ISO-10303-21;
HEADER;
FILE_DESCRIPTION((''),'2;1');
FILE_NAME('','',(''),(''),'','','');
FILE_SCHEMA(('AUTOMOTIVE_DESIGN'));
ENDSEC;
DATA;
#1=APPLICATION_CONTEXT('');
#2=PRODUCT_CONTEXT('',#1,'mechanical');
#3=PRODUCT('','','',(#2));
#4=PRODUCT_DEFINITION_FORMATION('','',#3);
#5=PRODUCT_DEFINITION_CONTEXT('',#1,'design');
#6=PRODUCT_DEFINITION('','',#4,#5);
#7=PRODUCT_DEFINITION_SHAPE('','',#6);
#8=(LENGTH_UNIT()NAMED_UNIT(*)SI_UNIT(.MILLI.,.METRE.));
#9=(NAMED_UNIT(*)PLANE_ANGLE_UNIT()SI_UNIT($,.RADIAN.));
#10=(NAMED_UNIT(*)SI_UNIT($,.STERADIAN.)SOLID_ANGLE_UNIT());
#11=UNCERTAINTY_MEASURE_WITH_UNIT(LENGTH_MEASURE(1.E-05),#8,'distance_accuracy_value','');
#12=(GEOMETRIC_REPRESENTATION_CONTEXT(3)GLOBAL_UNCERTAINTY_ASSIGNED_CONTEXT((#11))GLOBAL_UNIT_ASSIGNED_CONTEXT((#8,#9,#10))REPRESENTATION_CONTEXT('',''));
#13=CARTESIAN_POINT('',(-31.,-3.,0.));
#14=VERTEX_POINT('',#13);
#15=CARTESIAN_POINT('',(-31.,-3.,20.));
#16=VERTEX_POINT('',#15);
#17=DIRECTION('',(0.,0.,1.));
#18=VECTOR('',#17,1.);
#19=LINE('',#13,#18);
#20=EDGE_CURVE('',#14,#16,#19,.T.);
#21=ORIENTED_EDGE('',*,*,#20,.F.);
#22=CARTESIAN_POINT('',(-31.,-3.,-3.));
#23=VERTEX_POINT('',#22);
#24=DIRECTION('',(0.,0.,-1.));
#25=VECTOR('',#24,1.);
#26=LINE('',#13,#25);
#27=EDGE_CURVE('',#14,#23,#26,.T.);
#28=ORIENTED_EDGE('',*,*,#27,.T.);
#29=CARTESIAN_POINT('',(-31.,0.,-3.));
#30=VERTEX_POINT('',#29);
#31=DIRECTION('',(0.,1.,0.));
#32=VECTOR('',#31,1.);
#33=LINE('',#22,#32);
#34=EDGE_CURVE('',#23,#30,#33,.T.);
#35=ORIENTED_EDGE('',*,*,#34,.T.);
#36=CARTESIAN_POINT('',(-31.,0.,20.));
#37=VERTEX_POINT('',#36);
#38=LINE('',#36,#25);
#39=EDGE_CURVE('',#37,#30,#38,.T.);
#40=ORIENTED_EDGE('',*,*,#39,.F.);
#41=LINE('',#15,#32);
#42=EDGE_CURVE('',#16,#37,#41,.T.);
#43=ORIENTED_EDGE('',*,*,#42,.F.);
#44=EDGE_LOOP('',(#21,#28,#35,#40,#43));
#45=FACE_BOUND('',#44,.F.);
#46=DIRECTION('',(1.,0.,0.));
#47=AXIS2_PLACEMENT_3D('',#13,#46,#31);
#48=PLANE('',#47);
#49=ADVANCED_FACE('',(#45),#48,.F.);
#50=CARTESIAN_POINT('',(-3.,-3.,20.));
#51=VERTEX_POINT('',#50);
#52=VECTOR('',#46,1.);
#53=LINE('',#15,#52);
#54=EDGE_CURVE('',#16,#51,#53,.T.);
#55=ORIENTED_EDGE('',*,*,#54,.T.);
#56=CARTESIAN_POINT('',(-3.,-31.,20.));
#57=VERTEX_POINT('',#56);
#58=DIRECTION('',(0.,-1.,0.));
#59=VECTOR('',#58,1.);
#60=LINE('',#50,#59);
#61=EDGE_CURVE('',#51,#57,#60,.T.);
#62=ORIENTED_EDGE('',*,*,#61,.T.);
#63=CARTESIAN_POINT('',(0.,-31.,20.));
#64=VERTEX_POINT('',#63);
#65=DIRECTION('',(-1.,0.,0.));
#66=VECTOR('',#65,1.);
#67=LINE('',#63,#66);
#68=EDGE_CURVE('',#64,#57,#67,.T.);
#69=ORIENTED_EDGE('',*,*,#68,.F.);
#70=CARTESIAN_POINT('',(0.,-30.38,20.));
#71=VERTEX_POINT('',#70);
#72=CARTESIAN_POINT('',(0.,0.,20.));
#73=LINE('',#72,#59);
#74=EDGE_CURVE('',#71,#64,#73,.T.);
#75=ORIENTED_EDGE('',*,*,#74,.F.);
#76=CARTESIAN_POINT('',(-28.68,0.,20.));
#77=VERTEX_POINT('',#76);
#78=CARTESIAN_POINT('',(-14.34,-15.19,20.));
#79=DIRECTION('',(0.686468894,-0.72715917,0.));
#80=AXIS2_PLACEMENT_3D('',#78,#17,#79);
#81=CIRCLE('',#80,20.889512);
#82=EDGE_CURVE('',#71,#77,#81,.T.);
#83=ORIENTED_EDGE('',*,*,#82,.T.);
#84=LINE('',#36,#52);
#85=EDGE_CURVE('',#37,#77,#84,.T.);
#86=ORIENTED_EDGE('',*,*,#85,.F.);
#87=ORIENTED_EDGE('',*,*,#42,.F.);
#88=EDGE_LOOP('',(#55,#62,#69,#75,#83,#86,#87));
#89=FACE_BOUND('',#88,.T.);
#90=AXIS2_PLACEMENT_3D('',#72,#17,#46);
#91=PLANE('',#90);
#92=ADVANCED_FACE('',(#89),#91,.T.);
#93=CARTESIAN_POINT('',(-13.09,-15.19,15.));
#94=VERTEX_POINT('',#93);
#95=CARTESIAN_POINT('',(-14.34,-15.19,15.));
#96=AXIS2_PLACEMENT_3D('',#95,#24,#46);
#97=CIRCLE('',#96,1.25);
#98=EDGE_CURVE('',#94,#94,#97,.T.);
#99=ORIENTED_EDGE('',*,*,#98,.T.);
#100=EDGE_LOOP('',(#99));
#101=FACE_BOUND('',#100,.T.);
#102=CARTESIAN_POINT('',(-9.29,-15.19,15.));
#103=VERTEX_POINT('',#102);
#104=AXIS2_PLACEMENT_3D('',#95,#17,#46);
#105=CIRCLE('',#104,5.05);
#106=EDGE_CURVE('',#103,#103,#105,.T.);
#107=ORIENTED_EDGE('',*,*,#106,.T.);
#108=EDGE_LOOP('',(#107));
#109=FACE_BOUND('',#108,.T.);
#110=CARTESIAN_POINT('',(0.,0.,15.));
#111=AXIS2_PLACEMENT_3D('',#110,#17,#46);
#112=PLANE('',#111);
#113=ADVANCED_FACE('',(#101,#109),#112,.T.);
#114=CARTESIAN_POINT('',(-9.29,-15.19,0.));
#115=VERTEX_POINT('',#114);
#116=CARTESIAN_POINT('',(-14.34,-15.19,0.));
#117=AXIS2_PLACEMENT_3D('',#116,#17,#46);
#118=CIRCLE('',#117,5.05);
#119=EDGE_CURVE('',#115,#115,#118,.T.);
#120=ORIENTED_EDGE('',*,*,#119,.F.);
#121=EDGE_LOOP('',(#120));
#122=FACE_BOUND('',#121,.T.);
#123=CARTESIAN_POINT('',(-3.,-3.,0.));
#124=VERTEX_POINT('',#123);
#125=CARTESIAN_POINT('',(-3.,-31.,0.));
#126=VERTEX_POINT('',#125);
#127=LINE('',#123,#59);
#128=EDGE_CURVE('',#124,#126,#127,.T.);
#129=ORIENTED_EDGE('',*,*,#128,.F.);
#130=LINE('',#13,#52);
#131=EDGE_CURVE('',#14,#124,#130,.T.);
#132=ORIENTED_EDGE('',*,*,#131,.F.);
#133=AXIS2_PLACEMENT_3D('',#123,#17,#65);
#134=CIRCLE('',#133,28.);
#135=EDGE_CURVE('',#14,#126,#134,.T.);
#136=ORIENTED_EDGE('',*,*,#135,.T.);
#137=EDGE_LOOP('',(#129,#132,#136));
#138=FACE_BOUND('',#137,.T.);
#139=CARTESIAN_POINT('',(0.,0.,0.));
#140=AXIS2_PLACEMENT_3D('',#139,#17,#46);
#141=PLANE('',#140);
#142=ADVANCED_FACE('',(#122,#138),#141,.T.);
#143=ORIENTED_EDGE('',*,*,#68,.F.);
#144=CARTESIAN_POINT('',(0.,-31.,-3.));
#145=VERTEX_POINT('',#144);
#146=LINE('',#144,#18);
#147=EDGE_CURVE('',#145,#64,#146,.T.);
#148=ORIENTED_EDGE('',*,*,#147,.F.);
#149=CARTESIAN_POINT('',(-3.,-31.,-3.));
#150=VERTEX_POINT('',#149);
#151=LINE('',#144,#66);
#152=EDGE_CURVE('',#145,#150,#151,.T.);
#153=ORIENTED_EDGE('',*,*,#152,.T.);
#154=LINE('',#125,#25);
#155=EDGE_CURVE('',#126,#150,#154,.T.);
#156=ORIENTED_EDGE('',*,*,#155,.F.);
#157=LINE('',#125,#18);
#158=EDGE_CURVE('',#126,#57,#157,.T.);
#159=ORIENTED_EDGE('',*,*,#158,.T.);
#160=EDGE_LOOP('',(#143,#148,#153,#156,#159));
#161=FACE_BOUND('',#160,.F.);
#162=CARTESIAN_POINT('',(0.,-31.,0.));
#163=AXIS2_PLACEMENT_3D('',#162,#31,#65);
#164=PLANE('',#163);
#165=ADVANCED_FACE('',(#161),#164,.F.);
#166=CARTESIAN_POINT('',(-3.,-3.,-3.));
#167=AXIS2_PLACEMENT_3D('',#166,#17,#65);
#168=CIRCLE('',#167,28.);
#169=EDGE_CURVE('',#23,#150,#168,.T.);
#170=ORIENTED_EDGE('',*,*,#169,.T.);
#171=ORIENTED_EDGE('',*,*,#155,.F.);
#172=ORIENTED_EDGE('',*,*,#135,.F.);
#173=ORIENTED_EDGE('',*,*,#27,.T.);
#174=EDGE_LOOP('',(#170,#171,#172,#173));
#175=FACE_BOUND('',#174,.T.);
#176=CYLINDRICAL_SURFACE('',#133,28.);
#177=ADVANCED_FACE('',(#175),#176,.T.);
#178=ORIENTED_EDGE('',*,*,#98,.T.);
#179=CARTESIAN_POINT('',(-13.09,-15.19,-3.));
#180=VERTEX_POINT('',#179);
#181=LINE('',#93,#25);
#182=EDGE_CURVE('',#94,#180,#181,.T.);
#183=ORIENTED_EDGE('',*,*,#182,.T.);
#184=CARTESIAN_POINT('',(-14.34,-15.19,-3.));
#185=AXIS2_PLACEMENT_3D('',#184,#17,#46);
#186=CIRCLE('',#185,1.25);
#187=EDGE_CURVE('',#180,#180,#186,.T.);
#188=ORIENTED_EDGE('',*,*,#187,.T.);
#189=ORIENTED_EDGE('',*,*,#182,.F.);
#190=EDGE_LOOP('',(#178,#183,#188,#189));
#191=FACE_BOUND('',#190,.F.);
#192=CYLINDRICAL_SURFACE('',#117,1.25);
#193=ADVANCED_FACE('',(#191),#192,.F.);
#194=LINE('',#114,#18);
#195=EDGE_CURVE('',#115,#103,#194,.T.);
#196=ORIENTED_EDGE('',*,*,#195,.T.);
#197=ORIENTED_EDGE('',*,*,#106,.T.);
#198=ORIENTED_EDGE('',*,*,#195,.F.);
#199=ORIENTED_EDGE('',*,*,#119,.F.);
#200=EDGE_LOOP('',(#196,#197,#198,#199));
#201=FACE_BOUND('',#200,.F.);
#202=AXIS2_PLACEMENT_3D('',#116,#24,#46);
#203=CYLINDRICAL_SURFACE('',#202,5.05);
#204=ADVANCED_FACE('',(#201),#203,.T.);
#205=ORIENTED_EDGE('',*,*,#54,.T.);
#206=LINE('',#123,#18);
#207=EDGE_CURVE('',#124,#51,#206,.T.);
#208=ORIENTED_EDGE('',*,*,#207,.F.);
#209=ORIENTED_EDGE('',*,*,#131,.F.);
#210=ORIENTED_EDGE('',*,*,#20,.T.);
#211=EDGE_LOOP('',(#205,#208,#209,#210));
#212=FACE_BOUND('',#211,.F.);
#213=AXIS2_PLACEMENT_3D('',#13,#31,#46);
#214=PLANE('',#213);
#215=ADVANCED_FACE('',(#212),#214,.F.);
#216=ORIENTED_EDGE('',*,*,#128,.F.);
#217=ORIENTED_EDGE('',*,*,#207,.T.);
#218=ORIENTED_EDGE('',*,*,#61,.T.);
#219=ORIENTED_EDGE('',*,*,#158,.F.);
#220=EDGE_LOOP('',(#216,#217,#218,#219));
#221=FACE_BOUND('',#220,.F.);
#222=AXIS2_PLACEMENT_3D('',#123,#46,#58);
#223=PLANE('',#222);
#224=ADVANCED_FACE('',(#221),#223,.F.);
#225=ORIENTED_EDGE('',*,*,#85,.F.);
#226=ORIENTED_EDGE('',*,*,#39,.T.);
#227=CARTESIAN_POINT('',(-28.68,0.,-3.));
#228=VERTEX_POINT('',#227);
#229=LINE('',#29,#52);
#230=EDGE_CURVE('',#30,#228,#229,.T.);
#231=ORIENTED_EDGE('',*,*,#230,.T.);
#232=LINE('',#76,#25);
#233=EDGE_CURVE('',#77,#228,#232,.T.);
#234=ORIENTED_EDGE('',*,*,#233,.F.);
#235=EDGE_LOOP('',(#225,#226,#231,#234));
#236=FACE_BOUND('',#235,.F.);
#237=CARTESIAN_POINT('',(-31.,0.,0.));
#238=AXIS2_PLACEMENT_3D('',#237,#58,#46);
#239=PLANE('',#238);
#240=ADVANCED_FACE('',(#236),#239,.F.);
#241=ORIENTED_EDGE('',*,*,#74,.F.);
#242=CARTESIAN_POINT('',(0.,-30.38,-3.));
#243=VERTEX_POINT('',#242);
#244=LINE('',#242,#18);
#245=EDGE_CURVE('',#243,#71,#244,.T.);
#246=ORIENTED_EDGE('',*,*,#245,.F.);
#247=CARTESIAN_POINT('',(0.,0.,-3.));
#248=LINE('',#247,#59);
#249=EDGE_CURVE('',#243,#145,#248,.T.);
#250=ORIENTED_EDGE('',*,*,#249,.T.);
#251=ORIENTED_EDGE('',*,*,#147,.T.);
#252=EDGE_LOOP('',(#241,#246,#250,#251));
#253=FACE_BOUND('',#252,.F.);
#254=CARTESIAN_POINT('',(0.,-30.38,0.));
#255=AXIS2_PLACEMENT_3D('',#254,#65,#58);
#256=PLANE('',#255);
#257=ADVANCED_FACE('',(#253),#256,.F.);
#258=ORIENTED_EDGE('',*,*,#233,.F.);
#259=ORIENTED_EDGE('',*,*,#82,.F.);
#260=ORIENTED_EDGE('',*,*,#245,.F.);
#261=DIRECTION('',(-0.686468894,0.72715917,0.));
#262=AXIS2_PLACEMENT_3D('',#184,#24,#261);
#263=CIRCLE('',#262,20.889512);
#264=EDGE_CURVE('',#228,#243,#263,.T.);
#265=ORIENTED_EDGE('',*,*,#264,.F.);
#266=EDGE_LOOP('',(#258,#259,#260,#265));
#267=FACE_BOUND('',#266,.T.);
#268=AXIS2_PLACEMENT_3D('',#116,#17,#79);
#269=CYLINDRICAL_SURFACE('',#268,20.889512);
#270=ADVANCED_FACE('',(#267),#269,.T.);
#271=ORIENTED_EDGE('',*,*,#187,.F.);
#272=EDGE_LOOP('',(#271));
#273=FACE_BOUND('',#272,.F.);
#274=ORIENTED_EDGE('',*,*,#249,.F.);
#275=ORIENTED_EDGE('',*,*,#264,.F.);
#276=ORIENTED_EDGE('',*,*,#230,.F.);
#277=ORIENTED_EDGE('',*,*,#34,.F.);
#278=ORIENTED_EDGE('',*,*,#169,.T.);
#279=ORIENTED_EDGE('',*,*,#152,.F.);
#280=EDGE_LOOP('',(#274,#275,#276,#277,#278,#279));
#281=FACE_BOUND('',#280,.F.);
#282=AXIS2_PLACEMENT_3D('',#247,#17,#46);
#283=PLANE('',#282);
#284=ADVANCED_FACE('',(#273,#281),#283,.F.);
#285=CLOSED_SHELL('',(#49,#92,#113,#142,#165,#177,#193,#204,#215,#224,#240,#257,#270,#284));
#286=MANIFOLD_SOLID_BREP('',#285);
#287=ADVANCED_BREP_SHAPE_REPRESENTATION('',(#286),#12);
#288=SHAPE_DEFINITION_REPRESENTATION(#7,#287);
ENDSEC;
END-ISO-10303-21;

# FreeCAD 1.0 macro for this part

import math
import FreeCAD as App
import Part
import Sketcher

doc = App.newDocument("Part")
params = doc.addObject("Spreadsheet::Sheet", "Params")
for row, (alias, value) in enumerate([
    ("sketch1_width", "3 mm"),
    ("pad1_length", "3 mm"),
    ("sketch2_width", "3 mm"),
    ("pad2_length", "20 mm"),
    ("sketch3_diameter", "10.1 mm"),
    ("pad3_length", "15 mm"),
    ("sketch4_diameter", "2.5 mm"),
], start=1):
    params.set(f"A{row}", alias)
    params.set(f"B{row}", "=" + value)
    params.setAlias(f"B{row}", alias)

body = doc.addObject("PartDesign::Body", "Body")

# Sketch on XY plane
sketch1 = body.newObject("Sketcher::SketchObject", "Sketch")
sketch1.AttachmentSupport = (doc.getObject("XY_Plane"), [""])
sketch1.MapMode = "FlatFace"
sketch1.addGeometry([
    Part.ArcOfCircle(Part.Circle(App.Vector(-3, -3, 0), App.Vector(0, 0, 1), 28), math.radians(180), math.radians(270)),  # 0
    Part.LineSegment(App.Vector(-3, -31, 0), App.Vector(0, -31, 0)),  # 1
    Part.LineSegment(App.Vector(0, -31, 0), App.Vector(0, -30.38, 0)),  # 2
    Part.ArcOfCircle(Part.Circle(App.Vector(-14.34, -15.19, 0), App.Vector(0, 0, 1), 20.889512), math.radians(-46.648763), math.radians(133.351237)),  # 3
    Part.LineSegment(App.Vector(-28.68, 0, 0), App.Vector(-31, 0, 0)),  # 4
    Part.LineSegment(App.Vector(-31, 0, 0), App.Vector(-31, -3, 0)),  # 5
], False)
sketch1.addConstraint([
    Sketcher.Constraint("Tangent", 0, 2, 1, 1),
    Sketcher.Constraint("Coincident", 1, 2, 2, 1),
    Sketcher.Constraint("Coincident", 2, 2, 3, 1),
    Sketcher.Constraint("Coincident", 3, 2, 4, 1),
    Sketcher.Constraint("Coincident", 4, 2, 5, 1),
    Sketcher.Constraint("Tangent", 5, 2, 0, 1),
    Sketcher.Constraint("Horizontal", 1),
    Sketcher.Constraint("Vertical", 2),
    Sketcher.Constraint("Horizontal", 4),
    Sketcher.Constraint("Vertical", 5),
    Sketcher.Constraint("PointOnObject", 1, 2, -2),
    Sketcher.Constraint("PointOnObject", 3, 2, -1),
    Sketcher.Constraint("Equal", 1, 5),
    Sketcher.Constraint("DistanceX", 1, 1, 1, 2, 3.0),
    Sketcher.Constraint("DistanceY", 0, 2, -1, 1, 31.0),
    Sketcher.Constraint("Radius", 3, 20.8895),
    Sketcher.Constraint("DistanceX", 3, 3, 0, 3, 11.34),
    Sketcher.Constraint("DistanceY", 3, 3, 0, 3, 12.19),
])
sketch1.setExpression("Constraints[13]", "Params.sketch1_width")
pad1 = body.newObject("PartDesign::Pad", "Pad")
pad1.Profile = sketch1
pad1.setExpression("Length", "Params.pad1_length")
pad1.Reversed = True

# Sketch on XY plane
sketch2 = body.newObject("Sketcher::SketchObject", "Sketch001")
sketch2.AttachmentSupport = (doc.getObject("XY_Plane"), [""])
sketch2.MapMode = "FlatFace"
sketch2.addGeometry([
    Part.LineSegment(App.Vector(-31, 0, 0), App.Vector(-31, -3, 0)),  # 0
    Part.LineSegment(App.Vector(-31, -3, 0), App.Vector(-3, -3, 0)),  # 1
    Part.LineSegment(App.Vector(-3, -3, 0), App.Vector(-3, -31, 0)),  # 2
    Part.LineSegment(App.Vector(-3, -31, 0), App.Vector(0, -31, 0)),  # 3
    Part.LineSegment(App.Vector(0, -31, 0), App.Vector(0, -30.38, 0)),  # 4
    Part.ArcOfCircle(Part.Circle(App.Vector(-14.34, -15.19, 0), App.Vector(0, 0, 1), 20.889512), math.radians(-46.648763), math.radians(133.351237)),  # 5
    Part.LineSegment(App.Vector(-28.68, 0, 0), App.Vector(-31, 0, 0)),  # 6
], False)
sketch2.addConstraint([
    Sketcher.Constraint("Coincident", 0, 2, 1, 1),
    Sketcher.Constraint("Coincident", 1, 2, 2, 1),
    Sketcher.Constraint("Coincident", 2, 2, 3, 1),
    Sketcher.Constraint("Coincident", 3, 2, 4, 1),
    Sketcher.Constraint("Coincident", 4, 2, 5, 1),
    Sketcher.Constraint("Coincident", 5, 2, 6, 1),
    Sketcher.Constraint("Coincident", 6, 2, 0, 1),
    Sketcher.Constraint("Vertical", 0),
    Sketcher.Constraint("Horizontal", 1),
    Sketcher.Constraint("Vertical", 2),
    Sketcher.Constraint("Horizontal", 3),
    Sketcher.Constraint("Vertical", 4),
    Sketcher.Constraint("Horizontal", 6),
    Sketcher.Constraint("PointOnObject", 3, 2, -2),
    Sketcher.Constraint("PointOnObject", 5, 2, -1),
    Sketcher.Constraint("Equal", 3, 0),
    Sketcher.Constraint("Equal", 1, 2),
    Sketcher.Constraint("DistanceX", 3, 1, 3, 2, 3.0),
    Sketcher.Constraint("DistanceX", 0, 2, -1, 1, 31.0),
    Sketcher.Constraint("Radius", 5, 20.8895),
    Sketcher.Constraint("DistanceY", 5, 3, 0, 2, 12.19),
    Sketcher.Constraint("DistanceX", 5, 3, 1, 2, 11.34),
])
sketch2.setExpression("Constraints[17]", "Params.sketch2_width")
pad2 = body.newObject("PartDesign::Pad", "Pad001")
pad2.Profile = sketch2
pad2.setExpression("Length", "Params.pad2_length")

# Sketch on XY plane
sketch3 = body.newObject("Sketcher::SketchObject", "Sketch002")
sketch3.AttachmentSupport = (doc.getObject("XY_Plane"), [""])
sketch3.MapMode = "FlatFace"
sketch3.addGeometry(Part.Circle(App.Vector(-14.34, -15.19, 0), App.Vector(0, 0, 1), 5.05), False)
sketch3.addConstraint([
    Sketcher.Constraint("Diameter", 0, 10.1),
    Sketcher.Constraint("DistanceX", 0, 3, -1, 1, 14.34),
    Sketcher.Constraint("DistanceY", 0, 3, -1, 1, 15.19),
])
sketch3.setExpression("Constraints[0]", "Params.sketch3_diameter")
pad3 = body.newObject("PartDesign::Pad", "Pad002")
pad3.Profile = sketch3
pad3.setExpression("Length", "Params.pad3_length")

# Sketch on XY plane
sketch4 = body.newObject("Sketcher::SketchObject", "Sketch003")
sketch4.AttachmentSupport = (doc.getObject("XY_Plane"), [""])
sketch4.MapMode = "FlatFace"
sketch4.addGeometry(Part.Circle(App.Vector(-14.34, -15.19, 0), App.Vector(0, 0, 1), 1.25), False)
sketch4.addConstraint([
    Sketcher.Constraint("Diameter", 0, 2.5),
    Sketcher.Constraint("DistanceX", 0, 3, -1, 1, 14.34),
    Sketcher.Constraint("DistanceY", 0, 3, -1, 1, 15.19),
])
sketch4.setExpression("Constraints[0]", "Params.sketch4_diameter")
pocket1 = body.newObject("PartDesign::Pocket", "Pocket")
pocket1.Profile = sketch4
pocket1.Type = "ThroughAll"
pocket1.Midplane = True

doc.recompute()
